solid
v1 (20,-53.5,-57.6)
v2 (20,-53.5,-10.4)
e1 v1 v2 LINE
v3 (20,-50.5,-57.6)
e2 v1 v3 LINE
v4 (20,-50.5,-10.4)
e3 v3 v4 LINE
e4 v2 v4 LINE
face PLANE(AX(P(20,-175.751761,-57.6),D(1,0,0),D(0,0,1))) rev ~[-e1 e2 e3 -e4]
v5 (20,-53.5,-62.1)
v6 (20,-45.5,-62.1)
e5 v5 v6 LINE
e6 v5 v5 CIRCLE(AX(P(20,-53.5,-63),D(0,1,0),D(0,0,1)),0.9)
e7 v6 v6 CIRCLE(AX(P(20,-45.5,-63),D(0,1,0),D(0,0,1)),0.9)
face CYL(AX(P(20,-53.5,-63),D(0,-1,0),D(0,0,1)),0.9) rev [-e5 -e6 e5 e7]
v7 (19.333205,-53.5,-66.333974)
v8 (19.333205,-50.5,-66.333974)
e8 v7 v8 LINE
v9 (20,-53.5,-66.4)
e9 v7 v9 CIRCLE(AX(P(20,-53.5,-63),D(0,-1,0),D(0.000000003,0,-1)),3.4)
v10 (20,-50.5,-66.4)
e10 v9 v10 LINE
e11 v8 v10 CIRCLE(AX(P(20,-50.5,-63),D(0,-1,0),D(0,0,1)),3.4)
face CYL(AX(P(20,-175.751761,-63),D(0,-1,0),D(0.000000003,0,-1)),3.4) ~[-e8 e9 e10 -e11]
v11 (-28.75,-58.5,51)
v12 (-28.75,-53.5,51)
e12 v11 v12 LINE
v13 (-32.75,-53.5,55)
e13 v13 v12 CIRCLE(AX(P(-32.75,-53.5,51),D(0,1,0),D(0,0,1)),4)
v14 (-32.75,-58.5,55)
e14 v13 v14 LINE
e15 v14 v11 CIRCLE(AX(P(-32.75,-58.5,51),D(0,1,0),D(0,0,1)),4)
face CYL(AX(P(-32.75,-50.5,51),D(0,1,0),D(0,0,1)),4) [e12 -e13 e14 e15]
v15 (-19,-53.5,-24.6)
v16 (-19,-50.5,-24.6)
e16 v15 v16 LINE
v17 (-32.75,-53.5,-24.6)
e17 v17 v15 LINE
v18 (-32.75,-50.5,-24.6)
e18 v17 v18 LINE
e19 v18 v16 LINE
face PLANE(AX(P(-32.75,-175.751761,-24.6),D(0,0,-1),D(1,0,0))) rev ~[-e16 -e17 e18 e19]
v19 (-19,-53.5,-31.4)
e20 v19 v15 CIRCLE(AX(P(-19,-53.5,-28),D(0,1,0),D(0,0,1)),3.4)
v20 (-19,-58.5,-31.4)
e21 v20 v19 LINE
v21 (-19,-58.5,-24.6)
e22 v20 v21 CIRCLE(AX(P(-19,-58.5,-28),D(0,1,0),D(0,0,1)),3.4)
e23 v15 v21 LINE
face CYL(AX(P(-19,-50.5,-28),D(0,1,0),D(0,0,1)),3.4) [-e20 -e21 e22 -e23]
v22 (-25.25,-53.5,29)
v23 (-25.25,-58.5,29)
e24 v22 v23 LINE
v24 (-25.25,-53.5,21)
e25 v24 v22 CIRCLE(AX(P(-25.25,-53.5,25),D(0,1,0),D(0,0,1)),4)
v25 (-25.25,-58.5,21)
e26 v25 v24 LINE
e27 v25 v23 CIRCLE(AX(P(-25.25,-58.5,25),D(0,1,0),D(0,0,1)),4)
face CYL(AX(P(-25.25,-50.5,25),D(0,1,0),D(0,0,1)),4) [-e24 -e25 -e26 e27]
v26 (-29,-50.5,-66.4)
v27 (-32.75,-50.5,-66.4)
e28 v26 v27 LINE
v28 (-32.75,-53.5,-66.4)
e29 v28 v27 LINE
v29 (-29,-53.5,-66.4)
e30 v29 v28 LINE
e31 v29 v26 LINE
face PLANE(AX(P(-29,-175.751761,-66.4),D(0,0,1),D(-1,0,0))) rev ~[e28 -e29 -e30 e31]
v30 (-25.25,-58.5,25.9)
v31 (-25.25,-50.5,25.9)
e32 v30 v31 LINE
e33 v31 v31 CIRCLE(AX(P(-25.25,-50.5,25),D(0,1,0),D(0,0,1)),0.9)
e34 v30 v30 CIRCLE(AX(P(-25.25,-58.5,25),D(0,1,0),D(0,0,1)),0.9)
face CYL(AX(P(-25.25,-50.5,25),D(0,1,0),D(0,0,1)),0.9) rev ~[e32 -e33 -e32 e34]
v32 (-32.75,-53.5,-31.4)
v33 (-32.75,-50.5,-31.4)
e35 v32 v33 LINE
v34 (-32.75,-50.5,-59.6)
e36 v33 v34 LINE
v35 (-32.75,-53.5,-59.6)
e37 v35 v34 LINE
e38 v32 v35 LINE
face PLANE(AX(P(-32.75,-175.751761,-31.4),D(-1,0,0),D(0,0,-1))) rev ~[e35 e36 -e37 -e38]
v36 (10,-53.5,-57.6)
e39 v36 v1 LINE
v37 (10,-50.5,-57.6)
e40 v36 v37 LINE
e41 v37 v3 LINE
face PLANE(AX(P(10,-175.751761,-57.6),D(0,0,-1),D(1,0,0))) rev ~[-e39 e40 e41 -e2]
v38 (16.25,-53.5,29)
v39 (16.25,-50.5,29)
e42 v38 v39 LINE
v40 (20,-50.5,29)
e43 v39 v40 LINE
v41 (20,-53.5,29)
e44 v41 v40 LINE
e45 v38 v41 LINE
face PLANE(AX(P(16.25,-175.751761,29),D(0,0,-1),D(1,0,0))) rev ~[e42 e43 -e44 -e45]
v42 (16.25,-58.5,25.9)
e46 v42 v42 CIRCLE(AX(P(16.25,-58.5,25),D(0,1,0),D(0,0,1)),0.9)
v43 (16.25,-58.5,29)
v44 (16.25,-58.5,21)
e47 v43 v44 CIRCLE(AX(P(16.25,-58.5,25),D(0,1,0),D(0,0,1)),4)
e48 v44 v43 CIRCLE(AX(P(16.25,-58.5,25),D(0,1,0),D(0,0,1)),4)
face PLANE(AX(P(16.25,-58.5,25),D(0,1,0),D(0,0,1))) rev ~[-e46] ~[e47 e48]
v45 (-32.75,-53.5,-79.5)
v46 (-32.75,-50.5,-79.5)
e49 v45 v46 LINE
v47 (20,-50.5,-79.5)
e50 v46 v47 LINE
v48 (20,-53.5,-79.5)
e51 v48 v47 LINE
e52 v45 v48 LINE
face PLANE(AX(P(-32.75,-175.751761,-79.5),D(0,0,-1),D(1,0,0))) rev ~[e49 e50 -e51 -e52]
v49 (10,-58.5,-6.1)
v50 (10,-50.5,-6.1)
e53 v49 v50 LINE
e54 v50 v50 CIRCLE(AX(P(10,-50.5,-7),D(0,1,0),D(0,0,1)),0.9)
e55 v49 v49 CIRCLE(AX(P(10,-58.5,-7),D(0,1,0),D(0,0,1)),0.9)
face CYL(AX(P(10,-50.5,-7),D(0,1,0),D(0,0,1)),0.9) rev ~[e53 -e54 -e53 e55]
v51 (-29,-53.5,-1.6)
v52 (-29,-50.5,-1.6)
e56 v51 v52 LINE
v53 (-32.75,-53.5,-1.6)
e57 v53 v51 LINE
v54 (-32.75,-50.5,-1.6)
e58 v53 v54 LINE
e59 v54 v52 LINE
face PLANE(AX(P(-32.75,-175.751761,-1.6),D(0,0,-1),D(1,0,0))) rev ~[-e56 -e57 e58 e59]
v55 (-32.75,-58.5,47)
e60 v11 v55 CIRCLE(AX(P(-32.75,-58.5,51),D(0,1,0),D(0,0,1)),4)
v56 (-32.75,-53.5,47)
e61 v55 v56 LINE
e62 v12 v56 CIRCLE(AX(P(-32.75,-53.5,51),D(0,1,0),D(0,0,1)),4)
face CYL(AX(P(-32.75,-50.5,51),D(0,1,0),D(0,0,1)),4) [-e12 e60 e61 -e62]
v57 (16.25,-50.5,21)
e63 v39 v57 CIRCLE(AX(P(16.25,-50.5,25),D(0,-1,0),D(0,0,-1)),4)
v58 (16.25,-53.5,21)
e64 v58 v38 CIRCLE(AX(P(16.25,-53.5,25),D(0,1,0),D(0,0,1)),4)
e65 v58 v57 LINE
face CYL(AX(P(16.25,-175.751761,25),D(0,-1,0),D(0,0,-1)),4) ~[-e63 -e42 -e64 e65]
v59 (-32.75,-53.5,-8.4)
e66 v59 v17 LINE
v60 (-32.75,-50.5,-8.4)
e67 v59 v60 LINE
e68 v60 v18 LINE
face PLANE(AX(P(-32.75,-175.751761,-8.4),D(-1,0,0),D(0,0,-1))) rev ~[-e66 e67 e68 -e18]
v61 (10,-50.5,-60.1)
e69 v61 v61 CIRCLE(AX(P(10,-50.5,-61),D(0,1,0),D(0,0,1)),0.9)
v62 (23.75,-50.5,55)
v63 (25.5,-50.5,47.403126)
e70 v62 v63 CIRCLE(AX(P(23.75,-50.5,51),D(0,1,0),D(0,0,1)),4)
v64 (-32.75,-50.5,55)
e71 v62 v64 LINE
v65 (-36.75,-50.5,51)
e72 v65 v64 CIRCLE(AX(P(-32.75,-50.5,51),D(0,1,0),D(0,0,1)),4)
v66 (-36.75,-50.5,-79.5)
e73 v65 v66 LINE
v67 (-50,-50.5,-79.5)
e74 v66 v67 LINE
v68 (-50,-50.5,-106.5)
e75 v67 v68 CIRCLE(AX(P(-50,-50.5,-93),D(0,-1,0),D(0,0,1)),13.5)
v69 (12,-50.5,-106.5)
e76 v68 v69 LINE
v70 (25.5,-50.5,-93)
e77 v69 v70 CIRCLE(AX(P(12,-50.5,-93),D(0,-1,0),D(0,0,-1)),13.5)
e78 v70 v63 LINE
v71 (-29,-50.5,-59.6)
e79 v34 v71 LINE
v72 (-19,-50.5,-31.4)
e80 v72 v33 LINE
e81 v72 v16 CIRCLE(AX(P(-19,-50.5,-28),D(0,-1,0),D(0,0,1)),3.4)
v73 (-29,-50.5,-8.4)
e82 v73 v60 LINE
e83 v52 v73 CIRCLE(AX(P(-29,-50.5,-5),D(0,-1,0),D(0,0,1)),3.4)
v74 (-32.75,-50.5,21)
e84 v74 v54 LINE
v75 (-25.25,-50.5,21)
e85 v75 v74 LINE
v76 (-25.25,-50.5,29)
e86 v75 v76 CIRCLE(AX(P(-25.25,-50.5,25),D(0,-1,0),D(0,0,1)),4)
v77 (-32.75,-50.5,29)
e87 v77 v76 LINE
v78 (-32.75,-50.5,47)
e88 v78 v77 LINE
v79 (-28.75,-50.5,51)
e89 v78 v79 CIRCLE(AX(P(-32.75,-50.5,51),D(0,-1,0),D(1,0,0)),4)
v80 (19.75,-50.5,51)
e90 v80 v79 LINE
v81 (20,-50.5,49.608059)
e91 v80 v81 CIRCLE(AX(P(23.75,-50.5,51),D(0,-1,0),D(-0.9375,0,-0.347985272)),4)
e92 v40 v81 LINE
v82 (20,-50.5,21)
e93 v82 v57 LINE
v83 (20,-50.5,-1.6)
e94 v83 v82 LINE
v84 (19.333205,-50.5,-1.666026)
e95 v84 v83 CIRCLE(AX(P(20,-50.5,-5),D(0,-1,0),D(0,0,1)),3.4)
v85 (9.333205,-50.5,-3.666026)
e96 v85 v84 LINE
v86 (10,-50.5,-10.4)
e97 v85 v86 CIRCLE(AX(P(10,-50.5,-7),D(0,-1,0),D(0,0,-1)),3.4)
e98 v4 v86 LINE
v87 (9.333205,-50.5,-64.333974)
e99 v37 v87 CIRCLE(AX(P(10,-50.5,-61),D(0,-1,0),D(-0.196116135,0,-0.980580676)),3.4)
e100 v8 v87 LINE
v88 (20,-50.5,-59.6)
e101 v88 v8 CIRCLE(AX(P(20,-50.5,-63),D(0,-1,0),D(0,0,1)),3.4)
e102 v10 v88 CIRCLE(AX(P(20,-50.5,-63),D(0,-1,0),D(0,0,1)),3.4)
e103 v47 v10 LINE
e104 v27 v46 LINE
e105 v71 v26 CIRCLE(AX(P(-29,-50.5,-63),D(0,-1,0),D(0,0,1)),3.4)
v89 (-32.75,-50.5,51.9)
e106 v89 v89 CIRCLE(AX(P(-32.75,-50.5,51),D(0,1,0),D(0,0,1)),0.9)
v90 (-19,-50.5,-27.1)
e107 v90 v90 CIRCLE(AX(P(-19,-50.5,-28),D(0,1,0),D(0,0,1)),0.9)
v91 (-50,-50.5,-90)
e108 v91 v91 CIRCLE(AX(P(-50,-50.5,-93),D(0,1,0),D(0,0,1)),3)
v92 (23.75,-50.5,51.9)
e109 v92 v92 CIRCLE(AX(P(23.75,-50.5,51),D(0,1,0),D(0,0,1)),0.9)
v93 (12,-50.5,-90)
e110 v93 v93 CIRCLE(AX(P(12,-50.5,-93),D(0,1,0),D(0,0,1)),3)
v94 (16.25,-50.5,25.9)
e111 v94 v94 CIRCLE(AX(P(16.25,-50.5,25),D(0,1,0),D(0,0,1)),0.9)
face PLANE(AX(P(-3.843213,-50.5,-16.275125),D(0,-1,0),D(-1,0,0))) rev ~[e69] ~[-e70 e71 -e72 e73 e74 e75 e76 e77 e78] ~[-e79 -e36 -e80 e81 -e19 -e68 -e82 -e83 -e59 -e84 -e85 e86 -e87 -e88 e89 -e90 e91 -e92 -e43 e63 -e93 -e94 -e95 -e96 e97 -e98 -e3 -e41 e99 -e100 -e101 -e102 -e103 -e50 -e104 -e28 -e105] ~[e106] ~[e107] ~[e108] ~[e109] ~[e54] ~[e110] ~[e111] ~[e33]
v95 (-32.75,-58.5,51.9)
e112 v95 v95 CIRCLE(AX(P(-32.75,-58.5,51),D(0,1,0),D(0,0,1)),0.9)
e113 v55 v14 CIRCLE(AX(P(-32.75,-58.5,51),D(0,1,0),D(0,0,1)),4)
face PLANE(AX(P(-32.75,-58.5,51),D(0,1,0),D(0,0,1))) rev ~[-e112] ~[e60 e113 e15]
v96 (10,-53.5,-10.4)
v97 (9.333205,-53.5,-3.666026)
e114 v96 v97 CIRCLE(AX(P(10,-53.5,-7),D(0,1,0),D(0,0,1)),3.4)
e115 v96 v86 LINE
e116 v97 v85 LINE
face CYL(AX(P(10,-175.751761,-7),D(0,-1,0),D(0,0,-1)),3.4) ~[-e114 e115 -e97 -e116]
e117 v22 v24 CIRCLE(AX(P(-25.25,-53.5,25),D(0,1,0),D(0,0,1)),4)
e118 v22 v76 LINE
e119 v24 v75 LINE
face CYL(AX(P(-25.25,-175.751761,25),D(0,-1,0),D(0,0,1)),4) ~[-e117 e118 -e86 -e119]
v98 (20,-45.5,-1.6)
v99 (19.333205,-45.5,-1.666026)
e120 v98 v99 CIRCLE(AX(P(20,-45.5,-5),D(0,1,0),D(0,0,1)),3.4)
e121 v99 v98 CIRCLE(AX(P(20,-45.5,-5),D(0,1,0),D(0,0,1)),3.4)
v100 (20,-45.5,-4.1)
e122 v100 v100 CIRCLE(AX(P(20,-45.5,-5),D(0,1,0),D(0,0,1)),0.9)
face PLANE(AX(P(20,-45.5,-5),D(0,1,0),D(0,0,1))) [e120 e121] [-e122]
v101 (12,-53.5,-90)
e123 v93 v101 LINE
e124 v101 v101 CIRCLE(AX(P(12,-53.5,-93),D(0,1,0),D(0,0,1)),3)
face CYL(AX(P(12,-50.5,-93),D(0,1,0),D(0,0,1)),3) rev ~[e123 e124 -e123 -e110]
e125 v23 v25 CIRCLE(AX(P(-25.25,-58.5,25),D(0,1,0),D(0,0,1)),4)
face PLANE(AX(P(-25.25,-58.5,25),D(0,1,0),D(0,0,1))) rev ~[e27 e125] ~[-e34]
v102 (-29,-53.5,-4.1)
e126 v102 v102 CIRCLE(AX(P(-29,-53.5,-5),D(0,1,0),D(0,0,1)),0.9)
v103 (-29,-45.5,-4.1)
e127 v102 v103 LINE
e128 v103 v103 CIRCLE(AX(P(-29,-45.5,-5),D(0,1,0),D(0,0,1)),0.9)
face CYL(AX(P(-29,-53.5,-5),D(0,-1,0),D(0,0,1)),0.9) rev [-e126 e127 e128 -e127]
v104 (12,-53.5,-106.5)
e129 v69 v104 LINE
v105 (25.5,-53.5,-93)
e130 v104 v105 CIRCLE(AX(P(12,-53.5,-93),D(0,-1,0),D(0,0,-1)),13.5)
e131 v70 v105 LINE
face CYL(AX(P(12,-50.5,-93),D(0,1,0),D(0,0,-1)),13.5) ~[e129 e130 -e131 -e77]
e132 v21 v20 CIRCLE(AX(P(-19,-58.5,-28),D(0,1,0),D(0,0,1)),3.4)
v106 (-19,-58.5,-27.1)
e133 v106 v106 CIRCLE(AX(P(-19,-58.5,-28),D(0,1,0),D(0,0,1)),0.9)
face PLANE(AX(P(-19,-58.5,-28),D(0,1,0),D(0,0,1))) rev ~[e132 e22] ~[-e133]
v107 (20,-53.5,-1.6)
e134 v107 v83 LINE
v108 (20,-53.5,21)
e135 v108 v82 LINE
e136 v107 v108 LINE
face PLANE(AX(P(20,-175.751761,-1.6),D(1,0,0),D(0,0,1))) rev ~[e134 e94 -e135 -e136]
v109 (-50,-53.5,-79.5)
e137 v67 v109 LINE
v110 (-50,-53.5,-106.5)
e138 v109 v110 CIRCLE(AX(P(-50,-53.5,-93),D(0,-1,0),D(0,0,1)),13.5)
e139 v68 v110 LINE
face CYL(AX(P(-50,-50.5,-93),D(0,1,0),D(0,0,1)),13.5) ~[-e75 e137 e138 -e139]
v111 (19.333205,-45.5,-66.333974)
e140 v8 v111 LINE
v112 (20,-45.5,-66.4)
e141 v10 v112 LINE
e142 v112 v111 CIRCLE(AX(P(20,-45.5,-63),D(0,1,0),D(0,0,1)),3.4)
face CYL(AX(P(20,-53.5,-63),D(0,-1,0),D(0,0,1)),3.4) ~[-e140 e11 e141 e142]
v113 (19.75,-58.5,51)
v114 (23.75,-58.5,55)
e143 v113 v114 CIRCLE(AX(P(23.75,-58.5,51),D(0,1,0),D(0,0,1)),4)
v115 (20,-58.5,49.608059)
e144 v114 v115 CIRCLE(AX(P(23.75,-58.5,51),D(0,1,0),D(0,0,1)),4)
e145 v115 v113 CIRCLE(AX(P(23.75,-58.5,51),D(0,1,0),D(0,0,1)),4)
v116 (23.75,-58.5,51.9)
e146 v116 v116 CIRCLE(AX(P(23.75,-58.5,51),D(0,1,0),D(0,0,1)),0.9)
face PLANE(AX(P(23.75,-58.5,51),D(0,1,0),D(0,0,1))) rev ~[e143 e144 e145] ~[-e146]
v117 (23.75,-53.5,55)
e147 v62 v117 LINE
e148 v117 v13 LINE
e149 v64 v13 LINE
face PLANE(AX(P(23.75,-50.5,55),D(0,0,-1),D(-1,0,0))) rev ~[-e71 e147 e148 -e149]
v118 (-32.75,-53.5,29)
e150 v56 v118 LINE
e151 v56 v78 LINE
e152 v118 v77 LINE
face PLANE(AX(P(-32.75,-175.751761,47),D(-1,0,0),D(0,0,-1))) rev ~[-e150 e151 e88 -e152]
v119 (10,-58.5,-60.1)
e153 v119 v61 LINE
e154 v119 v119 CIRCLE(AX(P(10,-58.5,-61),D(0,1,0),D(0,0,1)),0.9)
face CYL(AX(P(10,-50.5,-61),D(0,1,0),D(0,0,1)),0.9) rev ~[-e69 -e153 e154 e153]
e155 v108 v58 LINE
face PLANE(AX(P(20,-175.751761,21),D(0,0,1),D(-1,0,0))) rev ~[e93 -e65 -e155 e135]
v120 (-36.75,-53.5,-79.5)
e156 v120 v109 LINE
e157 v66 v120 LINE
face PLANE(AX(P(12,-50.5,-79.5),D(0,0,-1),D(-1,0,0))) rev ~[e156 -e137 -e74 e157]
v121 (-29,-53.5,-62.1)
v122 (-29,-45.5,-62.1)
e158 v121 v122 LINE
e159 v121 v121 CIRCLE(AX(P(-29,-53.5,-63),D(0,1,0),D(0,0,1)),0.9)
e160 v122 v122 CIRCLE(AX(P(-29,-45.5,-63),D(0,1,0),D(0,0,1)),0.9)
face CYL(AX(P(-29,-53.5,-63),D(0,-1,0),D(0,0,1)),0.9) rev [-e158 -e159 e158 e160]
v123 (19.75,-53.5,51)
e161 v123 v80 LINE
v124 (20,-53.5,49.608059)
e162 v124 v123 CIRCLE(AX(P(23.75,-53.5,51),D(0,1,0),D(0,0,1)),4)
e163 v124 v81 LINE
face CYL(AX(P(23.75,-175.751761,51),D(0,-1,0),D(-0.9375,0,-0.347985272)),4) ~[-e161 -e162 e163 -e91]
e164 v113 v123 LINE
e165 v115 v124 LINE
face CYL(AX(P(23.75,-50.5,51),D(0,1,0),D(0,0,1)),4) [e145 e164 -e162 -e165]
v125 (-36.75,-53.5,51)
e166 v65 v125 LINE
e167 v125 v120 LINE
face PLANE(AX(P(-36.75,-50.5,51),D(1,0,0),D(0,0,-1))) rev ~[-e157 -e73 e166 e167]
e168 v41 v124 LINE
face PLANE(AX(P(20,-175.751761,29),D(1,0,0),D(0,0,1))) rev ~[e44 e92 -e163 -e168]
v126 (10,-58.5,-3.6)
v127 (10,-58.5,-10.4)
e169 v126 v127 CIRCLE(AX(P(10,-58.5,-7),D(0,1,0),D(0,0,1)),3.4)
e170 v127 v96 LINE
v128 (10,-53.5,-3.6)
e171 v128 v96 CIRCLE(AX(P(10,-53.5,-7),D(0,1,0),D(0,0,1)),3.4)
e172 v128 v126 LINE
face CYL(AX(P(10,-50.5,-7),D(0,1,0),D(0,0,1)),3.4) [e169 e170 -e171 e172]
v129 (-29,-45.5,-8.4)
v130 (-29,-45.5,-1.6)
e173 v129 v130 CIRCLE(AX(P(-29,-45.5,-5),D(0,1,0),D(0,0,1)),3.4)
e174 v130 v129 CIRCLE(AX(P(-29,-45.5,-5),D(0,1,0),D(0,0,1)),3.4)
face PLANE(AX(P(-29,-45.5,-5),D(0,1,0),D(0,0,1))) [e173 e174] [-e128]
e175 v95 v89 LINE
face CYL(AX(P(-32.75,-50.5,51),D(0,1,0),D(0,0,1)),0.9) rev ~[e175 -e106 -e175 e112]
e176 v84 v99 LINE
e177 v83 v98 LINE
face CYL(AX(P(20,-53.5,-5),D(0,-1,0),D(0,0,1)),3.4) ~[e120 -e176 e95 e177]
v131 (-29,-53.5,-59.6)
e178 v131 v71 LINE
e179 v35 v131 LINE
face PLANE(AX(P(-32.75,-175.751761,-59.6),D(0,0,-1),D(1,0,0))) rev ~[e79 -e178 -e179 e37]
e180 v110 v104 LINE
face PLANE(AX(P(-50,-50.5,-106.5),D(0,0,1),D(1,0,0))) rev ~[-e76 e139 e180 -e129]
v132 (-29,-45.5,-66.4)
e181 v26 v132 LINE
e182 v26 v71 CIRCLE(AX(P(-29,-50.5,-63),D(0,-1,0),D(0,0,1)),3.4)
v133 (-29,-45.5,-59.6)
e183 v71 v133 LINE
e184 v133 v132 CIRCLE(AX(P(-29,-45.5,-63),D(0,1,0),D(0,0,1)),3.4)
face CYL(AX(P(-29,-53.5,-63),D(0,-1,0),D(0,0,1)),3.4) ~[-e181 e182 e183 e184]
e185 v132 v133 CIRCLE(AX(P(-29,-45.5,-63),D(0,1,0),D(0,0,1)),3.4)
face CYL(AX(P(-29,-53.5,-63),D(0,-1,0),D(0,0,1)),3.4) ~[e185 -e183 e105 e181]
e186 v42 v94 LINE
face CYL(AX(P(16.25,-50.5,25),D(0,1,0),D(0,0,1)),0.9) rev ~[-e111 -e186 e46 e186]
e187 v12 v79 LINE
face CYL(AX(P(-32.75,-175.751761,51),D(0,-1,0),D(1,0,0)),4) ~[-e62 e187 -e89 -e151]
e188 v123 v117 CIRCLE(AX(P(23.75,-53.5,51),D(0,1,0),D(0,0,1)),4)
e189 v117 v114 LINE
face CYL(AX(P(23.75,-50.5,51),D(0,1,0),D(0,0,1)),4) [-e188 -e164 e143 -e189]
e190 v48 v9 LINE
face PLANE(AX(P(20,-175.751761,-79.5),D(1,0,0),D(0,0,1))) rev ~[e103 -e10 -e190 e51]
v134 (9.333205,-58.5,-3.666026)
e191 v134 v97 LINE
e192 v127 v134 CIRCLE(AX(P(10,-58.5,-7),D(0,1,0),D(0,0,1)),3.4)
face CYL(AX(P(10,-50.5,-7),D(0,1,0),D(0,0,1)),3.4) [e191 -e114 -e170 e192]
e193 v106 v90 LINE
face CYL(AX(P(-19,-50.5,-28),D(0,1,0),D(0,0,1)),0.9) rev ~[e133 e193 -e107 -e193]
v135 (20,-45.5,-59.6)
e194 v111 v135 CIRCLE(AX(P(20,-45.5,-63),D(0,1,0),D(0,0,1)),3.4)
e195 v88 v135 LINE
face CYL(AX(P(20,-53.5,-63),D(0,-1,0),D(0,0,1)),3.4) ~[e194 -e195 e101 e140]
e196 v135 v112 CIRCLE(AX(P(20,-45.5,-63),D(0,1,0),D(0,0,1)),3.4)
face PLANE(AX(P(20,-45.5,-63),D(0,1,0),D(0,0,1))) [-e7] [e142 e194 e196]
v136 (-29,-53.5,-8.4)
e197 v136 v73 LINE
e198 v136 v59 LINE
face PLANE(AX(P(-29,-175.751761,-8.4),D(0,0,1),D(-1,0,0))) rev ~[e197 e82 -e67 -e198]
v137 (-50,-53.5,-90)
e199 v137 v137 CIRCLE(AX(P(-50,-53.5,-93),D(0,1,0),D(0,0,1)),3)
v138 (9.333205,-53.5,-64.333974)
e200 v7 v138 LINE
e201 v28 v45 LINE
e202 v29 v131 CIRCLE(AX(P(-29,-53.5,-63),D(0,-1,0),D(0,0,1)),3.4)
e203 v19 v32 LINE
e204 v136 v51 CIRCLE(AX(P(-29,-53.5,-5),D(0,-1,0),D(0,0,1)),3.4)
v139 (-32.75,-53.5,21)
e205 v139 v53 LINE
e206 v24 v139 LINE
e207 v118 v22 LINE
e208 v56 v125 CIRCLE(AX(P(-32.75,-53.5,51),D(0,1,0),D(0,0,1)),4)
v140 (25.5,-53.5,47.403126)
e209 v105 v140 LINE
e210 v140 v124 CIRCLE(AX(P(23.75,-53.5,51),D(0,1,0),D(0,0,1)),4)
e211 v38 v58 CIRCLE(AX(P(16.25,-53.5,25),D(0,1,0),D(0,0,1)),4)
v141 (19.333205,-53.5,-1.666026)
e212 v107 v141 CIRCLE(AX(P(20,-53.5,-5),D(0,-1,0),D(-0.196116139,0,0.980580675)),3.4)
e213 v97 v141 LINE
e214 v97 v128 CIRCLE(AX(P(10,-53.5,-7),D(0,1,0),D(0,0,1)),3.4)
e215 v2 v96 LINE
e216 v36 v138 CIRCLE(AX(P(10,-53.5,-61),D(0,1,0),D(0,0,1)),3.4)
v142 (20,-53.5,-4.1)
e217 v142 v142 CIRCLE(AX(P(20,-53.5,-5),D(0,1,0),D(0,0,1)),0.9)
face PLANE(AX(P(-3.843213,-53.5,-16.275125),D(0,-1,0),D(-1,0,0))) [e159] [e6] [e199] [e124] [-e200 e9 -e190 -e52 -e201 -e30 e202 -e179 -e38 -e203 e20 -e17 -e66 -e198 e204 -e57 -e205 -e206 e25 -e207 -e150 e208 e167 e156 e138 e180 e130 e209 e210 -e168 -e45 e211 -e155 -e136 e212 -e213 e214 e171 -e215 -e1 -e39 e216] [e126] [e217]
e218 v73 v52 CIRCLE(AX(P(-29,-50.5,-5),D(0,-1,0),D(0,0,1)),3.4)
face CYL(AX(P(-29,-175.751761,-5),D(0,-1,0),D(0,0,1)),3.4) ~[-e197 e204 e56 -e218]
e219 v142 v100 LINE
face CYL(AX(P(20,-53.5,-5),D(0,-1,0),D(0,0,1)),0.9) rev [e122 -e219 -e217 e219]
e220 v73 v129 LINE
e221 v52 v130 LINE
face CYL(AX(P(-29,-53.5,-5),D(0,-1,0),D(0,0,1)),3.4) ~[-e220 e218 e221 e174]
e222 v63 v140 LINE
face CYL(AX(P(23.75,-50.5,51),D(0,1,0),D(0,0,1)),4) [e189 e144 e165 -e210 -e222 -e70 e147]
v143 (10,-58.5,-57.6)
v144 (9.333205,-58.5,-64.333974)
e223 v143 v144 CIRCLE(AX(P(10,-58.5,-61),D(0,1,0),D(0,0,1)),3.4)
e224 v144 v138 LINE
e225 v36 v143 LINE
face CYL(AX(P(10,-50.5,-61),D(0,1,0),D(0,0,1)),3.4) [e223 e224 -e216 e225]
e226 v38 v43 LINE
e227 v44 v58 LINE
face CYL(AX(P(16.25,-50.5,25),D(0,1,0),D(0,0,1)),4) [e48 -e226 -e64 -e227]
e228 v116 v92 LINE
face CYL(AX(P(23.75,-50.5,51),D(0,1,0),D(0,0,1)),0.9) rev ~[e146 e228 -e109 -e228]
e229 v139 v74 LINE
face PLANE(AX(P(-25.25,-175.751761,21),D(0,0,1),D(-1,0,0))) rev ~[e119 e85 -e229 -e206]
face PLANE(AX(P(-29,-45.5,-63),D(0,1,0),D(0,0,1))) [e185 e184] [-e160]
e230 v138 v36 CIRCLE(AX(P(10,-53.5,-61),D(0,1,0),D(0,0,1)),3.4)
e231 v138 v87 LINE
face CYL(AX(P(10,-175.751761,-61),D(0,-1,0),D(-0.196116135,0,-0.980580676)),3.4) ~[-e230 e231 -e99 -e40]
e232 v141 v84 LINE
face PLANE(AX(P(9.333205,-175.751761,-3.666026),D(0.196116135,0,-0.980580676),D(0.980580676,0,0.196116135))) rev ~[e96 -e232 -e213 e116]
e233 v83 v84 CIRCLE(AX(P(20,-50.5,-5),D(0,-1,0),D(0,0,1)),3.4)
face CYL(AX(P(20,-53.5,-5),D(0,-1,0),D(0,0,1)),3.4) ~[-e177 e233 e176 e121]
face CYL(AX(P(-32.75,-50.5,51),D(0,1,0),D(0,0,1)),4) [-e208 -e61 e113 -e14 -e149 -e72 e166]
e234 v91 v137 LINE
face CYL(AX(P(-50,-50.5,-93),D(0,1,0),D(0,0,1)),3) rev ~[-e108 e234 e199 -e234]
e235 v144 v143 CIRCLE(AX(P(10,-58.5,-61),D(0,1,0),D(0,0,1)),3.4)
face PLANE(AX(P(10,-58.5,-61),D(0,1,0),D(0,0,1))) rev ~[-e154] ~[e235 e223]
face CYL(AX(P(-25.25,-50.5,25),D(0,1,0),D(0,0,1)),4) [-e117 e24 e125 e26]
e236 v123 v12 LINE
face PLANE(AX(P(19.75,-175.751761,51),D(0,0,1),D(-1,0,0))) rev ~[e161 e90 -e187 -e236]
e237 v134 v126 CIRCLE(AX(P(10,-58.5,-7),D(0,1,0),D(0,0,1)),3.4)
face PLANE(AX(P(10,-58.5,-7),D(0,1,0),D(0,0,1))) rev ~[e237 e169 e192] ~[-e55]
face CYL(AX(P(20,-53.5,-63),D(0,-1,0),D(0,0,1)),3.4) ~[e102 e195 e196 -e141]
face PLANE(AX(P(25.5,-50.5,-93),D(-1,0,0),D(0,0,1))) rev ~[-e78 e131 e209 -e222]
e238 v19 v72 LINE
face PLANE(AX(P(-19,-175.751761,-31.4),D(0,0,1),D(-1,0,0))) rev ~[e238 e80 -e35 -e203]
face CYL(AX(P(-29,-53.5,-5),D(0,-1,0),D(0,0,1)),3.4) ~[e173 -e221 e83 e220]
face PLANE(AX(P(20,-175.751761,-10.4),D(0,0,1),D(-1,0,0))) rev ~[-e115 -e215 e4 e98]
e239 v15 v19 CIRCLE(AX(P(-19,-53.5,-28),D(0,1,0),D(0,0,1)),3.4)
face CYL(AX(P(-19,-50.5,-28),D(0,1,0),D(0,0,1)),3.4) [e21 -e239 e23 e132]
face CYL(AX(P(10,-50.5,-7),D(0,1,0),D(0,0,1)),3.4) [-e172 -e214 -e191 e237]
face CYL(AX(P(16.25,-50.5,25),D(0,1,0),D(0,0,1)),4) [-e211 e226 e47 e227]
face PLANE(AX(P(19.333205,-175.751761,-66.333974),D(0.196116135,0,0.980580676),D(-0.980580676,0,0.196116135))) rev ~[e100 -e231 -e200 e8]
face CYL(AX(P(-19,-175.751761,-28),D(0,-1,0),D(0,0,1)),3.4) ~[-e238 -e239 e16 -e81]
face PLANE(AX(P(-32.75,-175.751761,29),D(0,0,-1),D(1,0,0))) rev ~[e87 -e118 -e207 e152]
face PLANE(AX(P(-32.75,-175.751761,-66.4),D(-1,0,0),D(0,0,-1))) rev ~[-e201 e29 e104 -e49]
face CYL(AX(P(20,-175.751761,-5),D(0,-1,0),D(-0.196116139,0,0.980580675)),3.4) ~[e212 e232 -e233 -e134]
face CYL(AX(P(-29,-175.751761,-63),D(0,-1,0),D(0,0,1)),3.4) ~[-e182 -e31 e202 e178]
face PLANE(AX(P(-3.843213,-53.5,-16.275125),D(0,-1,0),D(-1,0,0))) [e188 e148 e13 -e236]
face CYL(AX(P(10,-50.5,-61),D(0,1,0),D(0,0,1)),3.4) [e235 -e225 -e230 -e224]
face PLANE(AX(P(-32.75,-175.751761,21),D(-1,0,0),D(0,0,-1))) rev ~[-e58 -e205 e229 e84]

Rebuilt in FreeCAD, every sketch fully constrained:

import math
import FreeCAD as App
import Part
import Sketcher
from FreeCAD import Vector
Q = App.Units.Quantity

doc = App.newDocument("Part")
body = doc.addObject("PartDesign::Body", "Body")

# Sketch on XZ plane
sketch1 = doc.addObject("Sketcher::SketchObject", "Sketch")
body.addObject(sketch1)
sketch1.AttachmentSupport = (doc.XZ_Plane, [""])
sketch1.MapMode = "FlatFace"
sketch1.AttachmentOffset = App.Placement(Vector(0, 0, 50.5), App.Rotation())
sketch1.addGeometry([
    Part.LineSegment(Vector(12, -106.5, 0), Vector(-50, -106.5, 0)),  # 0
    Part.ArcOfCircle(Part.Circle(Vector(-50, -93, 0), Vector(0, 0, 1), 13.5), math.radians(90), math.radians(270)),  # 1
    Part.LineSegment(Vector(-50, -79.5, 0), Vector(12, -79.5, 0)),  # 2
    Part.ArcOfCircle(Part.Circle(Vector(12, -93, 0), Vector(0, 0, 1), 13.5), math.radians(-90), math.radians(90)),  # 3
    Part.Circle(Vector(12, -93, 0), Vector(0, 0, 1), 3),  # 4
    Part.Circle(Vector(-50, -93, 0), Vector(0, 0, 1), 3),  # 5
], False)
sketch1.addConstraint([
    Sketcher.Constraint("Tangent", 0, 2, 1, 2),
    Sketcher.Constraint("Tangent", 1, 1, 2, 1),
    Sketcher.Constraint("Tangent", 2, 2, 3, 2),
    Sketcher.Constraint("Tangent", 3, 1, 0, 1),
    Sketcher.Constraint("Horizontal", 0),
    Sketcher.Constraint("Horizontal", 2),
    Sketcher.Constraint("Coincident", 4, 3, 3, 3),
    Sketcher.Constraint("Coincident", 5, 3, 1, 3),
    Sketcher.Constraint("Equal", 4, 5),
    Sketcher.Constraint("Diameter", 4, Q("6 mm")),
    Sketcher.Constraint("Radius", 1, Q("13.5 mm")),
    Sketcher.Constraint("DistanceX", 0, 2, 0, 1, Q("62 mm")),
    Sketcher.Constraint("DistanceX", 1, 3, -1, 1, Q("50 mm")),
    Sketcher.Constraint("DistanceY", 1, 3, -1, 1, Q("93 mm")),
])
pad1 = doc.addObject("PartDesign::Pad", "Pad")
body.addObject(pad1)
pad1.Profile = sketch1
pad1.Length = 3
body2 = doc.addObject("PartDesign::Body", "Body001")

# Sketch on XZ plane
sketch2 = doc.addObject("Sketcher::SketchObject", "Sketch001")
body2.addObject(sketch2)
sketch2.AttachmentSupport = (doc.getObject("XZ_Plane001"), [""])
sketch2.MapMode = "FlatFace"
sketch2.AttachmentOffset = App.Placement(Vector(0, 0, 50.5), App.Rotation())
sketch2.addGeometry([
    Part.Circle(Vector(-29, -63, 0), Vector(0, 0, 1), 3.4),
    Part.Circle(Vector(-29, -63, 0), Vector(0, 0, 1), 0.9),
], False)
sketch2.addConstraint([
    Sketcher.Constraint("Coincident", 1, 3, 0, 3),
    Sketcher.Constraint("Diameter", 0, Q("6.8 mm")),
    Sketcher.Constraint("Diameter", 1, Q("1.8 mm")),
    Sketcher.Constraint("DistanceX", 0, 3, -1, 1, Q("29 mm")),
    Sketcher.Constraint("DistanceY", 0, 3, -1, 1, Q("63 mm")),
])
pad2 = doc.addObject("PartDesign::Pad", "Pad001")
body2.addObject(pad2)
pad2.Profile = sketch2
pad2.Type = "TwoLengths"
pad2.Length = 5
pad2.Length2 = 3
pad2.Reversed = True
body3 = doc.addObject("PartDesign::Body", "Body002")

# Sketch on XZ plane
sketch3 = doc.addObject("Sketcher::SketchObject", "Sketch002")
body3.addObject(sketch3)
sketch3.AttachmentSupport = (doc.getObject("XZ_Plane002"), [""])
sketch3.MapMode = "FlatFace"
sketch3.AttachmentOffset = App.Placement(Vector(0, 0, 50.5), App.Rotation())
sketch3.addGeometry([
    Part.Circle(Vector(20, -63, 0), Vector(0, 0, 1), 3.4),
    Part.Circle(Vector(20, -63, 0), Vector(0, 0, 1), 0.9),
], False)
sketch3.addConstraint([
    Sketcher.Constraint("Coincident", 1, 3, 0, 3),
    Sketcher.Constraint("Diameter", 0, Q("6.8 mm")),
    Sketcher.Constraint("Diameter", 1, Q("1.8 mm")),
    Sketcher.Constraint("DistanceX", -1, 1, 0, 3, Q("20 mm")),
    Sketcher.Constraint("DistanceY", 0, 3, -1, 1, Q("63 mm")),
])
pad3 = doc.addObject("PartDesign::Pad", "Pad002")
body3.addObject(pad3)
pad3.Profile = sketch3
pad3.Type = "TwoLengths"
pad3.Length = 5
pad3.Length2 = 3
pad3.Reversed = True
body4 = doc.addObject("PartDesign::Body", "Body003")

# Sketch on XZ plane
sketch4 = doc.addObject("Sketcher::SketchObject", "Sketch003")
body4.addObject(sketch4)
sketch4.AttachmentSupport = (doc.getObject("XZ_Plane003"), [""])
sketch4.MapMode = "FlatFace"
sketch4.AttachmentOffset = App.Placement(Vector(0, 0, 50.5), App.Rotation())
sketch4.addGeometry([
    Part.Circle(Vector(20, -5, 0), Vector(0, 0, 1), 3.4),
    Part.Circle(Vector(20, -5, 0), Vector(0, 0, 1), 0.9),
], False)
sketch4.addConstraint([
    Sketcher.Constraint("Coincident", 1, 3, 0, 3),
    Sketcher.Constraint("Diameter", 0, Q("6.8 mm")),
    Sketcher.Constraint("Diameter", 1, Q("1.8 mm")),
    Sketcher.Constraint("DistanceX", -1, 1, 0, 3, Q("20 mm")),
    Sketcher.Constraint("DistanceY", 0, 3, -1, 1, Q("5 mm")),
])
pad4 = doc.addObject("PartDesign::Pad", "Pad003")
body4.addObject(pad4)
pad4.Profile = sketch4
pad4.Type = "TwoLengths"
pad4.Length = 5
pad4.Length2 = 3
pad4.Reversed = True
body5 = doc.addObject("PartDesign::Body", "Body004")

# Sketch on XZ plane
sketch5 = doc.addObject("Sketcher::SketchObject", "Sketch004")
body5.addObject(sketch5)
sketch5.AttachmentSupport = (doc.getObject("XZ_Plane004"), [""])
sketch5.MapMode = "FlatFace"
sketch5.AttachmentOffset = App.Placement(Vector(0, 0, 50.5), App.Rotation())
sketch5.addGeometry([
    Part.Circle(Vector(-29, -5, 0), Vector(0, 0, 1), 3.4),
    Part.Circle(Vector(-29, -5, 0), Vector(0, 0, 1), 0.9),
], False)
sketch5.addConstraint([
    Sketcher.Constraint("Coincident", 1, 3, 0, 3),
    Sketcher.Constraint("Diameter", 0, Q("6.8 mm")),
    Sketcher.Constraint("Diameter", 1, Q("1.8 mm")),
    Sketcher.Constraint("DistanceX", 0, 3, -1, 1, Q("29 mm")),
    Sketcher.Constraint("DistanceY", 0, 3, -1, 1, Q("5 mm")),
])
pad5 = doc.addObject("PartDesign::Pad", "Pad004")
body5.addObject(pad5)
pad5.Profile = sketch5
pad5.Type = "TwoLengths"
pad5.Length = 5
pad5.Length2 = 3
pad5.Reversed = True
body6 = doc.addObject("PartDesign::Body", "Body005")

# Sketch on XZ plane
sketch6 = doc.addObject("Sketcher::SketchObject", "Sketch005")
body6.addObject(sketch6)
sketch6.AttachmentSupport = (doc.getObject("XZ_Plane005"), [""])
sketch6.MapMode = "FlatFace"
sketch6.AttachmentOffset = App.Placement(Vector(0, 0, 50.5), App.Rotation())
sketch6.addGeometry([
    Part.Circle(Vector(10, -61, 0), Vector(0, 0, 1), 3.4),
    Part.Circle(Vector(10, -61, 0), Vector(0, 0, 1), 0.9),
], False)
sketch6.addConstraint([
    Sketcher.Constraint("Coincident", 1, 3, 0, 3),
    Sketcher.Constraint("Diameter", 0, Q("6.8 mm")),
    Sketcher.Constraint("Diameter", 1, Q("1.8 mm")),
    Sketcher.Constraint("DistanceX", -1, 1, 0, 3, Q("10 mm")),
    Sketcher.Constraint("DistanceY", 0, 3, -1, 1, Q("61 mm")),
])
pad6 = doc.addObject("PartDesign::Pad", "Pad005")
body6.addObject(pad6)
pad6.Profile = sketch6
pad6.Length = 8
body7 = doc.addObject("PartDesign::Body", "Body006")

# Sketch on XZ plane
sketch7 = doc.addObject("Sketcher::SketchObject", "Sketch006")
body7.addObject(sketch7)
sketch7.AttachmentSupport = (doc.getObject("XZ_Plane006"), [""])
sketch7.MapMode = "FlatFace"
sketch7.AttachmentOffset = App.Placement(Vector(0, 0, 50.5), App.Rotation())
sketch7.addGeometry([
    Part.Circle(Vector(10, -7, 0), Vector(0, 0, 1), 3.4),
    Part.Circle(Vector(10, -7, 0), Vector(0, 0, 1), 0.9),
], False)
sketch7.addConstraint([
    Sketcher.Constraint("Coincident", 1, 3, 0, 3),
    Sketcher.Constraint("Diameter", 0, Q("6.8 mm")),
    Sketcher.Constraint("Diameter", 1, Q("1.8 mm")),
    Sketcher.Constraint("DistanceX", -1, 1, 0, 3, Q("10 mm")),
    Sketcher.Constraint("DistanceY", 0, 3, -1, 1, Q("7 mm")),
])
pad7 = doc.addObject("PartDesign::Pad", "Pad006")
body7.addObject(pad7)
pad7.Profile = sketch7
pad7.Length = 8
body8 = doc.addObject("PartDesign::Body", "Body007")

# Sketch on XZ plane
sketch8 = doc.addObject("Sketcher::SketchObject", "Sketch007")
body8.addObject(sketch8)
sketch8.AttachmentSupport = (doc.getObject("XZ_Plane007"), [""])
sketch8.MapMode = "FlatFace"
sketch8.AttachmentOffset = App.Placement(Vector(0, 0, 50.5), App.Rotation())
sketch8.addGeometry([
    Part.Circle(Vector(-19, -28, 0), Vector(0, 0, 1), 3.4),
    Part.Circle(Vector(-19, -28, 0), Vector(0, 0, 1), 0.9),
], False)
sketch8.addConstraint([
    Sketcher.Constraint("Coincident", 1, 3, 0, 3),
    Sketcher.Constraint("Diameter", 0, Q("6.8 mm")),
    Sketcher.Constraint("Diameter", 1, Q("1.8 mm")),
    Sketcher.Constraint("DistanceX", 0, 3, -1, 1, Q("19 mm")),
    Sketcher.Constraint("DistanceY", 0, 3, -1, 1, Q("28 mm")),
])
pad8 = doc.addObject("PartDesign::Pad", "Pad007")
body8.addObject(pad8)
pad8.Profile = sketch8
pad8.Length = 8
body9 = doc.addObject("PartDesign::Body", "Body008")

# Sketch on XZ plane
sketch9 = doc.addObject("Sketcher::SketchObject", "Sketch008")
body9.addObject(sketch9)
sketch9.AttachmentSupport = (doc.getObject("XZ_Plane008"), [""])
sketch9.MapMode = "FlatFace"
sketch9.AttachmentOffset = App.Placement(Vector(0, 0, 50.5), App.Rotation())
sketch9.addGeometry([
    Part.Circle(Vector(-32.75, 51, 0), Vector(0, 0, 1), 4),
    Part.Circle(Vector(-32.75, 51, 0), Vector(0, 0, 1), 0.9),
], False)
sketch9.addConstraint([
    Sketcher.Constraint("Coincident", 1, 3, 0, 3),
    Sketcher.Constraint("Diameter", 0, Q("8 mm")),
    Sketcher.Constraint("Diameter", 1, Q("1.8 mm")),
    Sketcher.Constraint("DistanceY", -1, 1, 0, 3, Q("51 mm")),
    Sketcher.Constraint("DistanceX", 0, 3, -1, 1, Q("32.75 mm")),
])
pad9 = doc.addObject("PartDesign::Pad", "Pad008")
body9.addObject(pad9)
pad9.Profile = sketch9
pad9.Length = 8
body10 = doc.addObject("PartDesign::Body", "Body009")

# Sketch on XZ plane
sketch10 = doc.addObject("Sketcher::SketchObject", "Sketch009")
body10.addObject(sketch10)
sketch10.AttachmentSupport = (doc.getObject("XZ_Plane009"), [""])
sketch10.MapMode = "FlatFace"
sketch10.AttachmentOffset = App.Placement(Vector(0, 0, 50.5), App.Rotation())
sketch10.addGeometry([
    Part.Circle(Vector(-25.25, 25, 0), Vector(0, 0, 1), 4),
    Part.Circle(Vector(-25.25, 25, 0), Vector(0, 0, 1), 0.9),
], False)
sketch10.addConstraint([
    Sketcher.Constraint("Coincident", 1, 3, 0, 3),
    Sketcher.Constraint("Diameter", 0, Q("8 mm")),
    Sketcher.Constraint("Diameter", 1, Q("1.8 mm")),
    Sketcher.Constraint("DistanceY", -1, 1, 0, 3, Q("25 mm")),
    Sketcher.Constraint("DistanceX", 0, 3, -1, 1, Q("25.25 mm")),
])
pad10 = doc.addObject("PartDesign::Pad", "Pad009")
body10.addObject(pad10)
pad10.Profile = sketch10
pad10.Length = 8
body11 = doc.addObject("PartDesign::Body", "Body010")

# Sketch on XZ plane
sketch11 = doc.addObject("Sketcher::SketchObject", "Sketch010")
body11.addObject(sketch11)
sketch11.AttachmentSupport = (doc.getObject("XZ_Plane010"), [""])
sketch11.MapMode = "FlatFace"
sketch11.AttachmentOffset = App.Placement(Vector(0, 0, 50.5), App.Rotation())
sketch11.addGeometry([
    Part.Circle(Vector(16.25, 25, 0), Vector(0, 0, 1), 4),
    Part.Circle(Vector(16.25, 25, 0), Vector(0, 0, 1), 0.9),
], False)
sketch11.addConstraint([
    Sketcher.Constraint("Coincident", 1, 3, 0, 3),
    Sketcher.Constraint("Diameter", 0, Q("8 mm")),
    Sketcher.Constraint("Diameter", 1, Q("1.8 mm")),
    Sketcher.Constraint("DistanceY", -1, 1, 0, 3, Q("25 mm")),
    Sketcher.Constraint("DistanceX", -1, 1, 0, 3, Q("16.25 mm")),
])
pad11 = doc.addObject("PartDesign::Pad", "Pad010")
body11.addObject(pad11)
pad11.Profile = sketch11
pad11.Length = 8
body12 = doc.addObject("PartDesign::Body", "Body011")

# Sketch on XZ plane
sketch12 = doc.addObject("Sketcher::SketchObject", "Sketch011")
body12.addObject(sketch12)
sketch12.AttachmentSupport = (doc.getObject("XZ_Plane011"), [""])
sketch12.MapMode = "FlatFace"
sketch12.AttachmentOffset = App.Placement(Vector(0, 0, 50.5), App.Rotation())
sketch12.addGeometry([
    Part.Circle(Vector(23.75, 51, 0), Vector(0, 0, 1), 4),
    Part.Circle(Vector(23.75, 51, 0), Vector(0, 0, 1), 0.9),
], False)
sketch12.addConstraint([
    Sketcher.Constraint("Coincident", 1, 3, 0, 3),
    Sketcher.Constraint("Diameter", 0, Q("8 mm")),
    Sketcher.Constraint("Diameter", 1, Q("1.8 mm")),
    Sketcher.Constraint("DistanceY", -1, 1, 0, 3, Q("51 mm")),
    Sketcher.Constraint("DistanceX", -1, 1, 0, 3, Q("23.75 mm")),
])
pad12 = doc.addObject("PartDesign::Pad", "Pad011")
body12.addObject(pad12)
pad12.Profile = sketch12
pad12.Length = 8
body.AllowCompound = True
doc.recompute()

boolean = doc.addObject("PartDesign::Boolean", "Boolean")
body.addObject(boolean)
boolean.Type = "Fuse"
boolean.addObjects([body2])
doc.recompute()

boolean2 = doc.addObject("PartDesign::Boolean", "Boolean001")
body.addObject(boolean2)
boolean2.Type = "Fuse"
boolean2.addObjects([body3])
doc.recompute()

boolean3 = doc.addObject("PartDesign::Boolean", "Boolean002")
body.addObject(boolean3)
boolean3.Type = "Fuse"
boolean3.addObjects([body4])
doc.recompute()

boolean4 = doc.addObject("PartDesign::Boolean", "Boolean003")
body.addObject(boolean4)
boolean4.Type = "Fuse"
boolean4.addObjects([body5])
doc.recompute()

boolean5 = doc.addObject("PartDesign::Boolean", "Boolean004")
body.addObject(boolean5)
boolean5.Type = "Fuse"
boolean5.addObjects([body6])
doc.recompute()

boolean6 = doc.addObject("PartDesign::Boolean", "Boolean005")
body.addObject(boolean6)
boolean6.Type = "Fuse"
boolean6.addObjects([body7])
doc.recompute()

boolean7 = doc.addObject("PartDesign::Boolean", "Boolean006")
body.addObject(boolean7)
boolean7.Type = "Fuse"
boolean7.addObjects([body8])
doc.recompute()

boolean8 = doc.addObject("PartDesign::Boolean", "Boolean007")
body.addObject(boolean8)
boolean8.Type = "Fuse"
boolean8.addObjects([body9])
doc.recompute()

boolean9 = doc.addObject("PartDesign::Boolean", "Boolean008")
body.addObject(boolean9)
boolean9.Type = "Fuse"
boolean9.addObjects([body10])
doc.recompute()

boolean10 = doc.addObject("PartDesign::Boolean", "Boolean009")
body.addObject(boolean10)
boolean10.Type = "Fuse"
boolean10.addObjects([body11])
doc.recompute()

boolean11 = doc.addObject("PartDesign::Boolean", "Boolean010")
body.addObject(boolean11)
boolean11.Type = "Fuse"
boolean11.addObjects([body12])

# Sketch on XZ plane
sketch13 = doc.addObject("Sketcher::SketchObject", "Sketch012")
body.addObject(sketch13)
sketch13.AttachmentSupport = (doc.XZ_Plane, [""])
sketch13.MapMode = "FlatFace"
sketch13.AttachmentOffset = App.Placement(Vector(0, 0, 50.5), App.Rotation())
sketch13.addGeometry([
    Part.LineSegment(Vector(25.5, 47.403126, 0), Vector(25.5, -93, 0)),  # 0
    Part.ArcOfCircle(Part.Circle(Vector(12, -93, 0), Vector(0, 0, 1), 13.5), math.radians(0), math.radians(90)),  # 1
    Part.LineSegment(Vector(12, -79.5, 0), Vector(-36.75, -79.5, 0)),  # 2
    Part.LineSegment(Vector(-36.75, -79.5, 0), Vector(-36.75, 51, 0)),  # 3
    Part.ArcOfCircle(Part.Circle(Vector(-32.75, 51, 0), Vector(0, 0, 1), 4), math.radians(90), math.radians(180)),  # 4
    Part.LineSegment(Vector(-32.75, 55, 0), Vector(23.75, 55, 0)),  # 5
    Part.ArcOfCircle(Part.Circle(Vector(23.75, 51, 0), Vector(0, 0, 1), 4), math.radians(-64.05552), math.radians(90)),  # 6
    Part.Circle(Vector(23.75, 51, 0), Vector(0, 0, 1), 0.9),  # 7
    Part.Circle(Vector(16.25, 25, 0), Vector(0, 0, 1), 0.9),  # 8
    Part.Circle(Vector(20, -5, 0), Vector(0, 0, 1), 0.9),  # 9
    Part.Circle(Vector(-32.75, 51, 0), Vector(0, 0, 1), 0.9),  # 10
    Part.Circle(Vector(-25.25, 25, 0), Vector(0, 0, 1), 0.9),  # 11
    Part.Circle(Vector(-29, -5, 0), Vector(0, 0, 1), 0.9),  # 12
    Part.Circle(Vector(10, -7, 0), Vector(0, 0, 1), 0.9),  # 13
    Part.Circle(Vector(20, -63, 0), Vector(0, 0, 1), 0.9),  # 14
    Part.Circle(Vector(10, -61, 0), Vector(0, 0, 1), 0.9),  # 15
    Part.Circle(Vector(-19, -28, 0), Vector(0, 0, 1), 0.9),  # 16
    Part.Circle(Vector(-29, -63, 0), Vector(0, 0, 1), 0.9),  # 17
], False)
sketch13.addConstraint([
    Sketcher.Constraint("Tangent", 0, 2, 1, 1),
    Sketcher.Constraint("Tangent", 1, 2, 2, 1),
    Sketcher.Constraint("Coincident", 2, 2, 3, 1),
    Sketcher.Constraint("Tangent", 3, 2, 4, 2),
    Sketcher.Constraint("Tangent", 4, 1, 5, 1),
    Sketcher.Constraint("Tangent", 5, 2, 6, 2),
    Sketcher.Constraint("Coincident", 6, 1, 0, 1),
    Sketcher.Constraint("Vertical", 0),
    Sketcher.Constraint("Horizontal", 2),
    Sketcher.Constraint("Vertical", 3),
    Sketcher.Constraint("Horizontal", 5),
    Sketcher.Constraint("Coincident", 7, 3, 6, 3),
    Sketcher.Constraint("Coincident", 10, 3, 4, 3),
    Sketcher.Constraint("Equal", 4, 6),
    Sketcher.Constraint("Equal", 7, 8),
    Sketcher.Constraint("Equal", 8, 9),
    Sketcher.Constraint("Equal", 9, 10),
    Sketcher.Constraint("Equal", 10, 11),
    Sketcher.Constraint("Equal", 11, 12),
    Sketcher.Constraint("Equal", 12, 13),
    Sketcher.Constraint("Equal", 13, 14),
    Sketcher.Constraint("Equal", 14, 15),
    Sketcher.Constraint("Equal", 15, 16),
    Sketcher.Constraint("Equal", 16, 17),
    Sketcher.Constraint("Horizontal", 8, 3, 11, 3),
    Sketcher.Constraint("Horizontal", 9, 3, 12, 3),
    Sketcher.Constraint("Horizontal", 14, 3, 17, 3),
    Sketcher.Constraint("Vertical", 9, 3, 14, 3),
    Sketcher.Constraint("Vertical", 13, 3, 15, 3),
    Sketcher.Constraint("Vertical", 12, 3, 17, 3),
    Sketcher.Constraint("Radius", 4, Q("4 mm")),
    Sketcher.Constraint("Diameter", 7, Q("1.8 mm")),
    Sketcher.Constraint("Radius", 1, Q("13.5 mm")),
    Sketcher.Constraint("DistanceX", 5, 1, 5, 2, Q("56.5 mm")),
    Sketcher.Constraint("DistanceY", 3, 1, 3, 2, Q("130.5 mm")),
    Sketcher.Constraint("DistanceX", -1, 1, 1, 3, Q("12 mm")),
    Sketcher.Constraint("DistanceY", 1, 3, -1, 1, Q("93 mm")),
    Sketcher.Constraint("DistanceY", -1, 1, 8, 3, Q("25 mm")),
    Sketcher.Constraint("DistanceX", -1, 1, 9, 3, Q("20 mm")),
    Sketcher.Constraint("DistanceY", 9, 3, -1, 1, Q("5 mm")),
    Sketcher.Constraint("DistanceX", 12, 3, -1, 1, Q("29 mm")),
    Sketcher.Constraint("DistanceX", -1, 1, 13, 3, Q("10 mm")),
    Sketcher.Constraint("DistanceY", 13, 3, -1, 1, Q("7 mm")),
    Sketcher.Constraint("DistanceY", 14, 3, -1, 1, Q("63 mm")),
    Sketcher.Constraint("DistanceY", 15, 3, -1, 1, Q("61 mm")),
    Sketcher.Constraint("DistanceX", 16, 3, -1, 1, Q("19 mm")),
    Sketcher.Constraint("DistanceY", 16, 3, -1, 1, Q("28 mm")),
    Sketcher.Constraint("DistanceX", 4, 3, 8, 3, Q("49 mm")),
    Sketcher.Constraint("DistanceX", 11, 3, 7, 3, Q("49 mm")),
    Sketcher.Constraint("DistanceX", 2, 2, 2, 1, Q("48.75 mm")),
])
pad13 = doc.addObject("PartDesign::Pad", "Pad012")
body.addObject(pad13)
pad13.Profile = sketch13
pad13.Length = 3

# Sketch on XZ plane
sketch14 = doc.addObject("Sketcher::SketchObject", "Sketch013")
body.addObject(sketch14)
sketch14.AttachmentSupport = (doc.XZ_Plane, [""])
sketch14.MapMode = "FlatFace"
sketch14.AttachmentOffset = App.Placement(Vector(0, 0, 50.5), App.Rotation())
sketch14.addGeometry([
    Part.LineSegment(Vector(-32.75, -79.5, 0), Vector(-32.75, -66.4, 0)),  # 0
    Part.LineSegment(Vector(-32.75, -66.4, 0), Vector(-29, -66.4, 0)),  # 1
    Part.ArcOfCircle(Part.Circle(Vector(-29, -63, 0), Vector(0, 0, 1), 3.4), math.radians(-90), math.radians(90)),  # 2
    Part.LineSegment(Vector(-29, -59.6, 0), Vector(-32.75, -59.6, 0)),  # 3
    Part.LineSegment(Vector(-32.75, -59.6, 0), Vector(-32.75, -31.4, 0)),  # 4
    Part.LineSegment(Vector(-32.75, -31.4, 0), Vector(-19, -31.4, 0)),  # 5
    Part.ArcOfCircle(Part.Circle(Vector(-19, -28, 0), Vector(0, 0, 1), 3.4), math.radians(-90), math.radians(90)),  # 6
    Part.LineSegment(Vector(-19, -24.6, 0), Vector(-32.75, -24.6, 0)),  # 7
    Part.LineSegment(Vector(-32.75, -24.6, 0), Vector(-32.75, -8.4, 0)),  # 8
    Part.LineSegment(Vector(-32.75, -8.4, 0), Vector(-29, -8.4, 0)),  # 9
    Part.ArcOfCircle(Part.Circle(Vector(-29, -5, 0), Vector(0, 0, 1), 3.4), math.radians(-90), math.radians(90)),  # 10
    Part.LineSegment(Vector(-29, -1.6, 0), Vector(-32.75, -1.6, 0)),  # 11
    Part.LineSegment(Vector(-32.75, -1.6, 0), Vector(-32.75, 21, 0)),  # 12
    Part.LineSegment(Vector(-32.75, 21, 0), Vector(-25.25, 21, 0)),  # 13
    Part.ArcOfCircle(Part.Circle(Vector(-25.25, 25, 0), Vector(0, 0, 1), 4), math.radians(-90), math.radians(90)),  # 14
    Part.LineSegment(Vector(-25.25, 29, 0), Vector(-32.75, 29, 0)),  # 15
    Part.LineSegment(Vector(-32.75, 29, 0), Vector(-32.75, 47, 0)),  # 16
    Part.ArcOfCircle(Part.Circle(Vector(-32.75, 51, 0), Vector(0, 0, 1), 4), math.radians(-90), math.radians(0)),  # 17
    Part.LineSegment(Vector(-28.75, 51, 0), Vector(19.75, 51, 0)),  # 18
    Part.ArcOfCircle(Part.Circle(Vector(23.75, 51, 0), Vector(0, 0, 1), 4), math.radians(-180), math.radians(-159.635865)),  # 19
    Part.LineSegment(Vector(20, 49.608059, 0), Vector(20, 29, 0)),  # 20
    Part.LineSegment(Vector(20, 29, 0), Vector(16.25, 29, 0)),  # 21
    Part.ArcOfCircle(Part.Circle(Vector(16.25, 25, 0), Vector(0, 0, 1), 4), math.radians(90), math.radians(270)),  # 22
    Part.LineSegment(Vector(16.25, 21, 0), Vector(20, 21, 0)),  # 23
    Part.LineSegment(Vector(20, 21, 0), Vector(20, -1.6, 0)),  # 24
    Part.ArcOfCircle(Part.Circle(Vector(20, -5, 0), Vector(0, 0, 1), 3.4), math.radians(90), math.radians(101.309933)),  # 25
    Part.LineSegment(Vector(19.333205, -1.666026, 0), Vector(9.333205, -3.666026, 0)),  # 26
    Part.ArcOfCircle(Part.Circle(Vector(10, -7, 0), Vector(0, 0, 1), 3.4), math.radians(101.309932), math.radians(270)),  # 27
    Part.LineSegment(Vector(10, -10.4, 0), Vector(20, -10.4, 0)),  # 28
    Part.LineSegment(Vector(20, -10.4, 0), Vector(20, -57.6, 0)),  # 29
    Part.LineSegment(Vector(20, -57.6, 0), Vector(10, -57.6, 0)),  # 30
    Part.ArcOfCircle(Part.Circle(Vector(10, -61, 0), Vector(0, 0, 1), 3.4), math.radians(90), math.radians(258.690068)),  # 31
    Part.LineSegment(Vector(9.333205, -64.333974, 0), Vector(19.333205, -66.333974, 0)),  # 32
    Part.ArcOfCircle(Part.Circle(Vector(20, -63, 0), Vector(0, 0, 1), 3.4), math.radians(-101.309933), math.radians(-90)),  # 33
    Part.LineSegment(Vector(20, -66.4, 0), Vector(20, -79.5, 0)),  # 34
    Part.LineSegment(Vector(20, -79.5, 0), Vector(-32.75, -79.5, 0)),  # 35
], False)
sketch14.addConstraint([
    Sketcher.Constraint("Coincident", 0, 2, 1, 1),
    Sketcher.Constraint("Tangent", 1, 2, 2, 1),
    Sketcher.Constraint("Tangent", 2, 2, 3, 1),
    Sketcher.Constraint("Coincident", 3, 2, 4, 1),
    Sketcher.Constraint("Coincident", 4, 2, 5, 1),
    Sketcher.Constraint("Tangent", 5, 2, 6, 1),
    Sketcher.Constraint("Tangent", 6, 2, 7, 1),
    Sketcher.Constraint("Coincident", 7, 2, 8, 1),
    Sketcher.Constraint("Coincident", 8, 2, 9, 1),
    Sketcher.Constraint("Tangent", 9, 2, 10, 1),
    Sketcher.Constraint("Tangent", 10, 2, 11, 1),
    Sketcher.Constraint("Coincident", 11, 2, 12, 1),
    Sketcher.Constraint("Coincident", 12, 2, 13, 1),
    Sketcher.Constraint("Tangent", 13, 2, 14, 1),
    Sketcher.Constraint("Tangent", 14, 2, 15, 1),
    Sketcher.Constraint("Coincident", 15, 2, 16, 1),
    Sketcher.Constraint("Coincident", 16, 2, 17, 1),
    Sketcher.Constraint("Coincident", 17, 2, 18, 1),
    Sketcher.Constraint("Coincident", 18, 2, 19, 1),
    Sketcher.Constraint("Coincident", 19, 2, 20, 1),
    Sketcher.Constraint("Coincident", 20, 2, 21, 1),
    Sketcher.Constraint("Tangent", 21, 2, 22, 1),
    Sketcher.Constraint("Tangent", 22, 2, 23, 1),
    Sketcher.Constraint("Coincident", 23, 2, 24, 1),
    Sketcher.Constraint("Coincident", 24, 2, 25, 1),
    Sketcher.Constraint("Tangent", 25, 2, 26, 1),
    Sketcher.Constraint("Tangent", 26, 2, 27, 1),
    Sketcher.Constraint("Tangent", 27, 2, 28, 1),
    Sketcher.Constraint("Coincident", 28, 2, 29, 1),
    Sketcher.Constraint("Coincident", 29, 2, 30, 1),
    Sketcher.Constraint("Tangent", 30, 2, 31, 1),
    Sketcher.Constraint("Tangent", 31, 2, 32, 1),
    Sketcher.Constraint("Tangent", 32, 2, 33, 1),
    Sketcher.Constraint("Coincident", 33, 2, 34, 1),
    Sketcher.Constraint("Coincident", 34, 2, 35, 1),
    Sketcher.Constraint("Coincident", 35, 2, 0, 1),
    Sketcher.Constraint("Vertical", 0),
    Sketcher.Constraint("Horizontal", 1),
    Sketcher.Constraint("Horizontal", 3),
    Sketcher.Constraint("Vertical", 4),
    Sketcher.Constraint("Horizontal", 5),
    Sketcher.Constraint("Horizontal", 7),
    Sketcher.Constraint("Vertical", 8),
    Sketcher.Constraint("Horizontal", 9),
    Sketcher.Constraint("Horizontal", 11),
    Sketcher.Constraint("Vertical", 12),
    Sketcher.Constraint("Horizontal", 13),
    Sketcher.Constraint("Horizontal", 15),
    Sketcher.Constraint("Vertical", 16),
    Sketcher.Constraint("Horizontal", 18),
    Sketcher.Constraint("Vertical", 20),
    Sketcher.Constraint("Horizontal", 21),
    Sketcher.Constraint("Horizontal", 23),
    Sketcher.Constraint("Vertical", 24),
    Sketcher.Constraint("Horizontal", 28),
    Sketcher.Constraint("Vertical", 29),
    Sketcher.Constraint("Horizontal", 30),
    Sketcher.Constraint("Vertical", 34),
    Sketcher.Constraint("Horizontal", 35),
    Sketcher.Constraint("Equal", 2, 6),
    Sketcher.Constraint("Equal", 6, 10),
    Sketcher.Constraint("Equal", 14, 17),
    Sketcher.Constraint("Equal", 17, 19),
    Sketcher.Constraint("Equal", 19, 22),
    Sketcher.Constraint("Equal", 10, 25),
    Sketcher.Constraint("Equal", 25, 27),
    Sketcher.Constraint("Equal", 27, 31),
    Sketcher.Constraint("Equal", 31, 33),
    Sketcher.Constraint("Horizontal", 17, 3, 19, 3),
    Sketcher.Constraint("Horizontal", 14, 3, 22, 3),
    Sketcher.Constraint("Horizontal", 10, 3, 25, 3),
    Sketcher.Constraint("Horizontal", 2, 3, 33, 3),
    Sketcher.Constraint("Horizontal", 19, 3, 17, 2),
    Sketcher.Constraint("Vertical", 2, 3, 10, 3),
    Sketcher.Constraint("Vertical", 27, 3, 31, 3),
    Sketcher.Constraint("Vertical", 25, 3, 33, 3),
    Sketcher.Constraint("Vertical", 17, 3, 0, 2),
    Sketcher.Constraint("Vertical", 0, 2, 3, 2),
    Sketcher.Constraint("Vertical", 4, 2, 7, 2),
    Sketcher.Constraint("Vertical", 8, 2, 11, 2),
    Sketcher.Constraint("Vertical", 12, 2, 15, 2),
    Sketcher.Constraint("Vertical", 33, 3, 19, 2),
    Sketcher.Constraint("Vertical", 20, 2, 23, 2),
    Sketcher.Constraint("Vertical", 24, 2, 28, 2),
    Sketcher.Constraint("Vertical", 26, 2, 31, 2),
    Sketcher.Constraint("Vertical", 29, 2, 33, 2),
    Sketcher.Constraint("Equal", 11, 21),
    Sketcher.Constraint("Radius", 14, Q("4 mm")),
    Sketcher.Constraint("Radius", 2, Q("3.4 mm")),
    Sketcher.Constraint("DistanceX", 28, 1, 28, 2, Q("10 mm")),
    Sketcher.Constraint("DistanceY", 16, 1, 16, 2, Q("18 mm")),
    Sketcher.Constraint("DistanceX", 13, 1, 13, 2, Q("7.5 mm")),
    Sketcher.Constraint("DistanceX", 18, 1, 18, 2, Q("48.5 mm")),
    Sketcher.Constraint("DistanceY", 0, 1, 0, 2, Q("13.1 mm")),
    Sketcher.Constraint("DistanceY", 4, 1, 4, 2, Q("28.2 mm")),
    Sketcher.Constraint("DistanceY", 8, 1, 8, 2, Q("16.2 mm")),
    Sketcher.Constraint("DistanceY", 12, 1, 12, 2, Q("22.6 mm")),
    Sketcher.Constraint("DistanceY", 29, 2, 29, 1, Q("47.2 mm")),
    Sketcher.Constraint("DistanceX", 2, 3, -1, 1, Q("29 mm")),
    Sketcher.Constraint("DistanceY", 2, 3, -1, 1, Q("63 mm")),
    Sketcher.Constraint("DistanceX", 6, 3, -1, 1, Q("19 mm")),
    Sketcher.Constraint("DistanceX", -1, 1, 25, 3, Q("20 mm")),
    Sketcher.Constraint("DistanceX", 1, 1, 1, 2, Q("3.75 mm")),
])
pocket1 = doc.addObject("PartDesign::Pocket", "Pocket")
body.addObject(pocket1)
pocket1.Profile = sketch14
pocket1.Type = "ThroughAll"
pocket1.Midplane = True

doc.recompute()
